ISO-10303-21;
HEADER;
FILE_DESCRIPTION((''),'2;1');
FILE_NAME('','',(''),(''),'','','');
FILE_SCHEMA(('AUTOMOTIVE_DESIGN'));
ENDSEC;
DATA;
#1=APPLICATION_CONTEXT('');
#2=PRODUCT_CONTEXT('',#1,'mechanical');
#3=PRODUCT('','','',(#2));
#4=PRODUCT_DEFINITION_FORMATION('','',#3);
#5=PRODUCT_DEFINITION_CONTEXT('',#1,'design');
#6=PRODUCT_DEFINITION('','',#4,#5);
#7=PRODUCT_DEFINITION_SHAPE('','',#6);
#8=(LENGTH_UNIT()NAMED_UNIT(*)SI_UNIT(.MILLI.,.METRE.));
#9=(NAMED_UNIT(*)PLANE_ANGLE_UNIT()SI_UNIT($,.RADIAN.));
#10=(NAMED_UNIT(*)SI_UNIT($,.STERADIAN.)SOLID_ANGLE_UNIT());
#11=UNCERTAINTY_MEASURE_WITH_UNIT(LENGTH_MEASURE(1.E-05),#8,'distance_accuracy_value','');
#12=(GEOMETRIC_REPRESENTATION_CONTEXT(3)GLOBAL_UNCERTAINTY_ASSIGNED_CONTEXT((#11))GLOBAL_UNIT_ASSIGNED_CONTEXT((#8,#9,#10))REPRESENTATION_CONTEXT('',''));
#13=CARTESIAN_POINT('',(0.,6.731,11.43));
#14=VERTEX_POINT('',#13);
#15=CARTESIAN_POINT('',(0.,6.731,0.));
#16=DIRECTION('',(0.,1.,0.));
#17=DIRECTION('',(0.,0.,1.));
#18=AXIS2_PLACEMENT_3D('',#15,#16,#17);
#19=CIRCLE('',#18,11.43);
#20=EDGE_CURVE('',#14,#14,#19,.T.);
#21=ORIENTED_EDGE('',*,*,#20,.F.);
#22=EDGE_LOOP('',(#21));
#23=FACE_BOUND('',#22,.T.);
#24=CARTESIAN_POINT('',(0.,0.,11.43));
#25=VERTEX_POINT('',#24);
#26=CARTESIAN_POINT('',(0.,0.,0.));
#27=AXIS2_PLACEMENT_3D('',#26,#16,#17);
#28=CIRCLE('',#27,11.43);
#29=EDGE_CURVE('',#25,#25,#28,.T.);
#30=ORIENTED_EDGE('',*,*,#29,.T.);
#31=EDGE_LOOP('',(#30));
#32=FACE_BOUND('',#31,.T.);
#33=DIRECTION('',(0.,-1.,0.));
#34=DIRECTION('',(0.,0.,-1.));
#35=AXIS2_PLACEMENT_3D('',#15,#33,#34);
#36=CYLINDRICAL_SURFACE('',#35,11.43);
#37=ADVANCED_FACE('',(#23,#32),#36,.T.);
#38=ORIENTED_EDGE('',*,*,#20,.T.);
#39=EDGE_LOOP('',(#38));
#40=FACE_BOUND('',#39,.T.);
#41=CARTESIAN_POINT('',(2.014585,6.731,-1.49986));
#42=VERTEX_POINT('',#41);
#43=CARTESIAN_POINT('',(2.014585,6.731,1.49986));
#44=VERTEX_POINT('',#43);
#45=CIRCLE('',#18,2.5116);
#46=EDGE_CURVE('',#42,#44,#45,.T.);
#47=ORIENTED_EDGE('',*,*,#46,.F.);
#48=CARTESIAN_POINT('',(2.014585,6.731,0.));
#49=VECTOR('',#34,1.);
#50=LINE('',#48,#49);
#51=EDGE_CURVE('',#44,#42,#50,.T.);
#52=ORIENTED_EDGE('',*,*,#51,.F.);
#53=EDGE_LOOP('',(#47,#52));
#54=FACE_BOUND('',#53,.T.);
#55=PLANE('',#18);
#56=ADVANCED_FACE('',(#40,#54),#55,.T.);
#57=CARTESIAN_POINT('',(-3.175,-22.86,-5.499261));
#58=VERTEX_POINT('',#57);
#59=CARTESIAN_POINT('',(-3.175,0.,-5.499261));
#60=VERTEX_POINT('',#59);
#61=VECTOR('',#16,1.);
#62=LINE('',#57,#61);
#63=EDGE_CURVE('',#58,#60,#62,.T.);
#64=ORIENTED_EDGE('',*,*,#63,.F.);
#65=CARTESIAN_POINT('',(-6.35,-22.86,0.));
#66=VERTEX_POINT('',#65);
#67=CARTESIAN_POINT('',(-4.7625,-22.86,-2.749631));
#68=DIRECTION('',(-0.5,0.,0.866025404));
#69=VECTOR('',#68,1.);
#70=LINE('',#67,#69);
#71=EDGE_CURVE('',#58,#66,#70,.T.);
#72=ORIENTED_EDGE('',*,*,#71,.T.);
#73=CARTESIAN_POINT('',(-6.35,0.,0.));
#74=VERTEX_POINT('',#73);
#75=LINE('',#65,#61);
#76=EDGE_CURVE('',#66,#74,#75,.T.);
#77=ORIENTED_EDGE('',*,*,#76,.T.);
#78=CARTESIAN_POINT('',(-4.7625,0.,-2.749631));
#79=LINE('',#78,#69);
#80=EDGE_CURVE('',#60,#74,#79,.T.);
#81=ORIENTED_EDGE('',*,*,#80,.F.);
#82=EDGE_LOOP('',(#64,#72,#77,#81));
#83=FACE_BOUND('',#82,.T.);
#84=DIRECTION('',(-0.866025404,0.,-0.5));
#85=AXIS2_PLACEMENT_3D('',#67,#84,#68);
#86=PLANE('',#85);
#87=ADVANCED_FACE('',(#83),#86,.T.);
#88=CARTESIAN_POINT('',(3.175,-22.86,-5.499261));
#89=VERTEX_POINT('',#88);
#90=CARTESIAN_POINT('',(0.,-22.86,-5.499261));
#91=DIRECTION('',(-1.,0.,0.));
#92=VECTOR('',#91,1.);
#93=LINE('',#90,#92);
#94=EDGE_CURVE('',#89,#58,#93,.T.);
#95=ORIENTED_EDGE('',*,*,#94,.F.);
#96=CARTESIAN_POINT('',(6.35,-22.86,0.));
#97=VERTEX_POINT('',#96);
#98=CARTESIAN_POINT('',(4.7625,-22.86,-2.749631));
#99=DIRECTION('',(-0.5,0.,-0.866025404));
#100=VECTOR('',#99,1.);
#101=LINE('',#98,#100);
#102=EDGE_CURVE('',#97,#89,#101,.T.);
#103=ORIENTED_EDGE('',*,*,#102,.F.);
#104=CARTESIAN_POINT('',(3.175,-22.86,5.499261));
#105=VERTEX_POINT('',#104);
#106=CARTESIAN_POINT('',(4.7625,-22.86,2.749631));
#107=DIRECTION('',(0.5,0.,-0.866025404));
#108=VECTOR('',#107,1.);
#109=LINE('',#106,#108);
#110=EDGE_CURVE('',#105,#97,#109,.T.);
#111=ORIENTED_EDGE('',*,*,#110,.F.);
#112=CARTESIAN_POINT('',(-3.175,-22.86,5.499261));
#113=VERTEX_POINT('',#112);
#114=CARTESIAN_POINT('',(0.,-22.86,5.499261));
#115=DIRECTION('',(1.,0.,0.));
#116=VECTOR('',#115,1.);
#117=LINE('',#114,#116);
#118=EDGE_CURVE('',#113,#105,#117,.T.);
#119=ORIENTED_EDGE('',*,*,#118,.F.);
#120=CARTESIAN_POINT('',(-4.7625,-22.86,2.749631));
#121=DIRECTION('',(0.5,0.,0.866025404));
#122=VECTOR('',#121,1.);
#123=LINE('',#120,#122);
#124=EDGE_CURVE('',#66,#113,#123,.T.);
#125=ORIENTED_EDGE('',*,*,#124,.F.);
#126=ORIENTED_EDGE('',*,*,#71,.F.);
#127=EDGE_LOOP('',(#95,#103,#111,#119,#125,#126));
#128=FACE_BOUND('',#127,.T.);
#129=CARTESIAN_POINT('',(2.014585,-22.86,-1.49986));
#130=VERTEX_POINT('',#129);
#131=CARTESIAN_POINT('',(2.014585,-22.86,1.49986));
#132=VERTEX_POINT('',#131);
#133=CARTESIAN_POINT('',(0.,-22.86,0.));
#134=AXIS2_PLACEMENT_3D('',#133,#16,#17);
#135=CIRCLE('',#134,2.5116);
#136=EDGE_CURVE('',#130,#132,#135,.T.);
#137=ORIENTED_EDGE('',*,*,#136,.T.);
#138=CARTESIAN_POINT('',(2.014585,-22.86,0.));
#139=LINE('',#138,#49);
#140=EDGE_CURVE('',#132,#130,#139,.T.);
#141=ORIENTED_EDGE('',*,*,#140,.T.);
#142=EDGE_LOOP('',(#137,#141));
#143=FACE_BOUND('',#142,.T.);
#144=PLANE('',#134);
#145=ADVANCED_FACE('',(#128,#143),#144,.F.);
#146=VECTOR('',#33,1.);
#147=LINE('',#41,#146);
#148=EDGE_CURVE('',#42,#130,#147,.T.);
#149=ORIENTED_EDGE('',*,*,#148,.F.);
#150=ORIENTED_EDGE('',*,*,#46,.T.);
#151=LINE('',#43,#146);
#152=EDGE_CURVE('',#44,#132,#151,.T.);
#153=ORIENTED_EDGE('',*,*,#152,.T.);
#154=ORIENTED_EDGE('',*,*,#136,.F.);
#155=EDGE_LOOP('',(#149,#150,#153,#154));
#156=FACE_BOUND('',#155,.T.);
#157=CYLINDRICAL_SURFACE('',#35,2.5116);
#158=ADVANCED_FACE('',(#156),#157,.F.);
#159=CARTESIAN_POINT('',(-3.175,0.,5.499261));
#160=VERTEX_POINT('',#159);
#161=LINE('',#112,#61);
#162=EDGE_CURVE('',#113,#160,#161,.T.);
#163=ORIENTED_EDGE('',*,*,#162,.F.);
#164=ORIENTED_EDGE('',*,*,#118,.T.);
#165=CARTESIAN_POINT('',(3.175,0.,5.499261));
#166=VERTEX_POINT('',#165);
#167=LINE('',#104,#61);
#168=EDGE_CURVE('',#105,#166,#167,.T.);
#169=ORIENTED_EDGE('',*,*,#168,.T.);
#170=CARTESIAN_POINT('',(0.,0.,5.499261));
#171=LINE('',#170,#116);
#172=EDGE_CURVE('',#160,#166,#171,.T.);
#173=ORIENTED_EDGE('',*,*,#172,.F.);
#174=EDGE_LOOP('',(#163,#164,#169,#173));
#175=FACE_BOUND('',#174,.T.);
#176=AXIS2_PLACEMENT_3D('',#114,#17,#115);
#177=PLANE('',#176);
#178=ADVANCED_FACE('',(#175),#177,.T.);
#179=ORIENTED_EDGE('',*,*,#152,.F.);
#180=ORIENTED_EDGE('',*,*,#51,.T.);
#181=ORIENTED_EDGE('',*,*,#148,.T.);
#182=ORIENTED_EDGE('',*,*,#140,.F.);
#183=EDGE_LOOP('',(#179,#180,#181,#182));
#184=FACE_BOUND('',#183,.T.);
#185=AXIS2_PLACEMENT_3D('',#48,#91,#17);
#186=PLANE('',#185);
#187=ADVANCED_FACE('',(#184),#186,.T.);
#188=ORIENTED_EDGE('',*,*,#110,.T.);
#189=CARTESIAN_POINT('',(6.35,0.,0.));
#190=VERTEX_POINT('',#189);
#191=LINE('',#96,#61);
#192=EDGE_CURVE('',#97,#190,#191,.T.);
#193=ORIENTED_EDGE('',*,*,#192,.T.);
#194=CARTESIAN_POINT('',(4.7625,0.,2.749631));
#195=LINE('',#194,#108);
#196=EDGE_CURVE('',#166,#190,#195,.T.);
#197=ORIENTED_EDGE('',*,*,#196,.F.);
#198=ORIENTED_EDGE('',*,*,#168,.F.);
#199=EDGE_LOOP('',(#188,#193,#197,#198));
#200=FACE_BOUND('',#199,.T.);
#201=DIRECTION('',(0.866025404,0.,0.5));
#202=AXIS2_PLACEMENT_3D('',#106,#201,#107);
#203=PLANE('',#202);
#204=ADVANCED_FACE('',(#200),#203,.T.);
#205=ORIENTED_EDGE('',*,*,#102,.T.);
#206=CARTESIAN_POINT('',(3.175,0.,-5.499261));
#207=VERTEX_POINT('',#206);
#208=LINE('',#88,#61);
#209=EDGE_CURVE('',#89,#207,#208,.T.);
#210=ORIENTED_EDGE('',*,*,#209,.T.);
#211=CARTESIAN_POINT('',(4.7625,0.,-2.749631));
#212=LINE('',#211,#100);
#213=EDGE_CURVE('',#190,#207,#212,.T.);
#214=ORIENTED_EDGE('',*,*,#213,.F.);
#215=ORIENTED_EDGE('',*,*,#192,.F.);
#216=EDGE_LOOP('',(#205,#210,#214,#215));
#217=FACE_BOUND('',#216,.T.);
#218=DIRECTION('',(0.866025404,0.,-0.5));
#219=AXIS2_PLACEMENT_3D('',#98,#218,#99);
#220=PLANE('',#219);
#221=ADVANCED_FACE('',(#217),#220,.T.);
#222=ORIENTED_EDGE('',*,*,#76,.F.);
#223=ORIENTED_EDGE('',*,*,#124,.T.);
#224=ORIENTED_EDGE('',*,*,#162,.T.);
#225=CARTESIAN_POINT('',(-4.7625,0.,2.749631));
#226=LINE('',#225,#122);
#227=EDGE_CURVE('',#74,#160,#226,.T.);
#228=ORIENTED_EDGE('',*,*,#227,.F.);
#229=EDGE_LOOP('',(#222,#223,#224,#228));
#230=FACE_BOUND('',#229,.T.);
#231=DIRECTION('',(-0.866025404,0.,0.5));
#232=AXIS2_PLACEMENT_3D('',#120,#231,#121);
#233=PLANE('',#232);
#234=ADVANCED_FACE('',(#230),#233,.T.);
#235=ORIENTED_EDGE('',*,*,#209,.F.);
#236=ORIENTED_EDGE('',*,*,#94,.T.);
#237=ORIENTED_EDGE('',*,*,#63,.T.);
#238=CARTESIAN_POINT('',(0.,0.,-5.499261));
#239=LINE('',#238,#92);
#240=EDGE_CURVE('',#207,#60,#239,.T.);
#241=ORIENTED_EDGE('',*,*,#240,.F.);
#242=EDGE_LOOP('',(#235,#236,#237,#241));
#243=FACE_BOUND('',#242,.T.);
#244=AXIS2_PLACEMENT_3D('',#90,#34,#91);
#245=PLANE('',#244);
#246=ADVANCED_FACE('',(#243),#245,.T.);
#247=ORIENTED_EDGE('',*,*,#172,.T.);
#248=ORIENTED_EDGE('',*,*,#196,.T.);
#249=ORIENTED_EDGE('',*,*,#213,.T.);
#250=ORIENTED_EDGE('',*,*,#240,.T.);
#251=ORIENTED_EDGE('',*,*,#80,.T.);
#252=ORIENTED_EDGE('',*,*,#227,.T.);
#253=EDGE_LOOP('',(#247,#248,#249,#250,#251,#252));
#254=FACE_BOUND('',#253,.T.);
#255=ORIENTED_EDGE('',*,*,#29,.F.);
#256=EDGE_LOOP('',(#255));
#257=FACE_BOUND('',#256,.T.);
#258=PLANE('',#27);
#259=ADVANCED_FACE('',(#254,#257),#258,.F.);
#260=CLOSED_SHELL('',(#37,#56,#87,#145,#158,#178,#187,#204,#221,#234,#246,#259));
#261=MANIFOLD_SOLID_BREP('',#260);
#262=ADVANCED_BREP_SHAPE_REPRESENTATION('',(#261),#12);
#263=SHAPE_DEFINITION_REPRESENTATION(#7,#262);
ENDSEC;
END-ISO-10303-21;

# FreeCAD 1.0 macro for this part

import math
import FreeCAD as App
import Part
import Sketcher
from FreeCAD import Vector
Q = App.Units.Quantity


def add_polygon(sketch, points):
    """Adds a closed chain of lines whose ends are joined by coincident constraints."""
    first, n = sketch.GeometryCount, len(points)
    for a, b in zip(points, points[1:] + points[:1]):
        sketch.addGeometry(Part.LineSegment(App.Vector(*a, 0), App.Vector(*b, 0)), False)
    for i in range(n):
        sketch.addConstraint(Sketcher.Constraint("Coincident", first + i, 2, first + (i + 1) % n, 1))

doc = App.newDocument("Part")
body = doc.addObject("PartDesign::Body", "Body")

# Sketch on XZ plane
sketch1 = body.newObject("Sketcher::SketchObject", "Sketch")
sketch1.AttachmentSupport = (doc.getObject("XZ_Plane"), [""])
sketch1.MapMode = "FlatFace"
sketch1.addGeometry([
    Part.Circle(Vector(0, 0, 0), Vector(0, 0, 1), 11.43),
    Part.LineSegment(Vector(2.014585, -1.49986, 0), Vector(2.014585, 1.49986, 0)),
    Part.ArcOfCircle(Part.Circle(Vector(0, 0, 0), Vector(0, 0, 1), 2.5116), math.radians(36.66772), math.radians(323.33228)),
], False)
sketch1.addConstraint([
    Sketcher.Constraint("Coincident", 1, 1, 2, 2),
    Sketcher.Constraint("Coincident", 2, 1, 1, 2),
    Sketcher.Constraint("Vertical", 1),
    Sketcher.Constraint("Coincident", 0, 3, -1, 1),
    Sketcher.Constraint("Coincident", 2, 3, -1, 1),
    Sketcher.Constraint("Diameter", 0, Q("0.9 in")),
    Sketcher.Constraint("Radius", 2, 2.5116),
    Sketcher.Constraint("DistanceY", 1, 1, 1, 2, 2.999721),
])
pad1 = body.newObject("PartDesign::Pad", "Pad")
pad1.Profile = sketch1
pad1.Length = Q("0.265 in")
pad1.Reversed = True

# Sketch on XZ plane
sketch2 = body.newObject("Sketcher::SketchObject", "Sketch001")
sketch2.AttachmentSupport = (doc.getObject("XZ_Plane"), [""])
sketch2.MapMode = "FlatFace"
sketch2.AttachmentOffset = App.Placement(Vector(0, 0, 0.9 * 25.4), App.Rotation())
add_polygon(sketch2, [(-3.175, -5.499261), (-6.35, 0), (-3.175, 5.499261), (3.175, 5.499261), (6.35, 0), (3.175, -5.499261)])  # lines 0-5
sketch2.addGeometry(Part.ArcOfCircle(Part.Circle(Vector(0, 0, 0), Vector(0, 0, 1), 2.5116), math.radians(36.66772), math.radians(323.33228)), False)  # 6
sketch2.addGeometry(Part.LineSegment(Vector(2.014585, -1.49986, 0), Vector(2.014585, 1.49986, 0)), False)  # 7
sketch2.addConstraint([
    Sketcher.Constraint("Coincident", 6, 1, 7, 2),
    Sketcher.Constraint("Coincident", 7, 1, 6, 2),
    Sketcher.Constraint("Horizontal", 2),
    Sketcher.Constraint("Horizontal", 5),
    Sketcher.Constraint("Vertical", 7),
    Sketcher.Constraint("Coincident", 6, 3, -1, 1),
    Sketcher.Constraint("Symmetric", 0, 2, 3, 2, -1, 1),
    Sketcher.Constraint("Symmetric", 1, 2, 4, 2, -1, 1),
    Sketcher.Constraint("PointOnObject", 0, 2, -1),
    Sketcher.Constraint("Parallel", 0, 3),
    Sketcher.Constraint("Vertical", 2, 2, 4, 2),
    Sketcher.Constraint("Angle", 0, Q("120 deg")),
    Sketcher.Constraint("DistanceX", 2, 1, 2, 2, Q("0.25 in")),
    Sketcher.Constraint("DistanceX", 0, 2, 3, 2, Q("0.5 in")),
    Sketcher.Constraint("Radius", 6, 2.5116),
    Sketcher.Constraint("DistanceY", 7, 1, 7, 2, 2.999721),
])
pad2 = body.newObject("PartDesign::Pad", "Pad001")
pad2.Profile = sketch2
pad2.Length = Q("0.9 in")
pad2.Reversed = True

doc.recompute()
